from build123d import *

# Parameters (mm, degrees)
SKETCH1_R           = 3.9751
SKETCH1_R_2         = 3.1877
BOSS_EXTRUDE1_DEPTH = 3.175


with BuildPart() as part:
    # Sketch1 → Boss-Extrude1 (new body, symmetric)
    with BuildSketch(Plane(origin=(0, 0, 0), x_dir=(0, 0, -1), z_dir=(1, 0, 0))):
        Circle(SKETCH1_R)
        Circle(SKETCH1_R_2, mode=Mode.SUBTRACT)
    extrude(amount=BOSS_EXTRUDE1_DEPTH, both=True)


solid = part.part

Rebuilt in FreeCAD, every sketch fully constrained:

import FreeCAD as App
import Part
import Sketcher
from FreeCAD import Vector
Q = App.Units.Quantity

doc = App.newDocument("Part")
params = doc.addObject("Spreadsheet::Sheet", "Params")
for row, (alias, value) in enumerate([
    ("sketch1_diameter", "0.313 in"),
    ("sketch1_diameter2", "0.251 in"),
    ("pad1_length", "0.25 in"),
], start=1):
    params.set(f"A{row}", alias)
    params.set(f"B{row}", "=" + value)
    params.setAlias(f"B{row}", alias)

body = doc.addObject("PartDesign::Body", "Body")

sketch1 = body.newObject("Sketcher::SketchObject", "Sketch")
sketch1.AttachmentSupport = (doc.getObject("YZ_Plane"), [""])
sketch1.MapMode = "FlatFace"
sketch1.addGeometry([
    Part.Circle(Vector(0, 0, 0), Vector(0, 0, 1), 3.9751),
    Part.Circle(Vector(0, 0, 0), Vector(0, 0, 1), 3.1877),
], False)
sketch1.addConstraint([
    Sketcher.Constraint("Coincident", 0, 3, -1, 1),
    Sketcher.Constraint("Coincident", 1, 3, -1, 1),
    Sketcher.Constraint("Diameter", 0, Q("0.313 in")),
    Sketcher.Constraint("Diameter", 1, Q("0.251 in")),
])
sketch1.setExpression("Constraints[2]", "Params.sketch1_diameter")
sketch1.setExpression("Constraints[3]", "Params.sketch1_diameter2")
pad1 = body.newObject("PartDesign::Pad", "Pad")
pad1.Profile = sketch1
pad1.setExpression("Length", "Params.pad1_length")
pad1.Midplane = True

doc.recompute()
